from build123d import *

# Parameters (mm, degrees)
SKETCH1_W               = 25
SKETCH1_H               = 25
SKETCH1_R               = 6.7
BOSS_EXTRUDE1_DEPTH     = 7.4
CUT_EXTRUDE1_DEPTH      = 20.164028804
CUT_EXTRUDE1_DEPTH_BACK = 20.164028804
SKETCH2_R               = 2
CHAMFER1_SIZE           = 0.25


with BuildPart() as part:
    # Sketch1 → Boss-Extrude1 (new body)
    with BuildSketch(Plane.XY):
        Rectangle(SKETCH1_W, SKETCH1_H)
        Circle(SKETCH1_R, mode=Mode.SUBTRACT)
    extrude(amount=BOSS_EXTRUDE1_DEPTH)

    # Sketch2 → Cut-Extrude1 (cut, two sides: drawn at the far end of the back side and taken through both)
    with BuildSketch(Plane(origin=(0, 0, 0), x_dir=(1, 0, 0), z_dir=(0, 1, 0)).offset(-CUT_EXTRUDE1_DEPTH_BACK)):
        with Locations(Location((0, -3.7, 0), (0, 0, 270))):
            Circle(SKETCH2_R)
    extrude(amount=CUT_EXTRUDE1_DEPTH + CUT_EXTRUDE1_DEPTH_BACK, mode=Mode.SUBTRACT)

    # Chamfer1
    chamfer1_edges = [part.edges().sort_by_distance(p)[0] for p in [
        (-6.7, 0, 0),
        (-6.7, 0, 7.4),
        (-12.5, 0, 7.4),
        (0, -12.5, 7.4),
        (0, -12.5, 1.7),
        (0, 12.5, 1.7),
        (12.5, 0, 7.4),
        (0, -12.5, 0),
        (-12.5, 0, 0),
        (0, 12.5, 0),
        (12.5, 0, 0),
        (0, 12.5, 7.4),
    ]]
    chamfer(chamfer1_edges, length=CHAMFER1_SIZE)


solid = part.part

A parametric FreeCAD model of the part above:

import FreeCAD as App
import Part
import Sketcher
Q = App.Units.Quantity


def edges_at(feature, points):
    """Names of the edges that pass closest to the given points."""
    edges = feature.Shape.Edges
    near = lambda p: min(range(len(edges)), key=lambda i: edges[i].distToShape(Part.Vertex(*p))[0])
    return sorted({f"Edge{near(p) + 1}" for p in points})

doc = App.newDocument("Part")
body = doc.addObject("PartDesign::Body", "Body")

# Sketch on XY plane
sketch1 = body.newObject("Sketcher::SketchObject", "Sketch")
sketch1.AttachmentSupport = (doc.getObject("XY_Plane"), [""])
sketch1.MapMode = "FlatFace"
sketch1.addGeometry([
    Part.LineSegment(App.Vector(-12, 12, 0), App.Vector(-12, -12, 0)),  # 0
    Part.LineSegment(App.Vector(-12, -12, 0), App.Vector(12, -12, 0)),  # 1
    Part.LineSegment(App.Vector(12, -12, 0), App.Vector(12, 12, 0)),  # 2
    Part.LineSegment(App.Vector(12, 12, 0), App.Vector(-12, 12, 0)),  # 3
    Part.Circle(App.Vector(0, 0, 0), App.Vector(0, 0, 1), 7),  # 4
], False)
sketch1.addConstraint([
    Sketcher.Constraint("Coincident", 0, 2, 1, 1),
    Sketcher.Constraint("Coincident", 1, 2, 2, 1),
    Sketcher.Constraint("Coincident", 2, 2, 3, 1),
    Sketcher.Constraint("Coincident", 3, 2, 0, 1),
    Sketcher.Constraint("Vertical", 0),
    Sketcher.Constraint("Horizontal", 1),
    Sketcher.Constraint("Vertical", 2),
    Sketcher.Constraint("Horizontal", 3),
    Sketcher.Constraint("Coincident", 4, 3, -1, 1),
    Sketcher.Constraint("Symmetric", 0, 2, 2, 2, -1, 1),
    Sketcher.Constraint("Equal", 3, 0),
    Sketcher.Constraint("Diameter", 4, Q("13.4 mm")),
    Sketcher.Constraint("DistanceX", 1, 1, 1, 2, Q("25 mm")),
])
pad1 = body.newObject("PartDesign::Pad", "Pad")
pad1.Profile = sketch1
pad1.Length = 7.4

# Sketch on XZ plane
sketch2 = body.newObject("Sketcher::SketchObject", "Sketch001")
sketch2.AttachmentSupport = (doc.getObject("XZ_Plane"), [""])
sketch2.MapMode = "FlatFace"
sketch2.addGeometry(Part.Circle(App.Vector(0, 3.7, 0), App.Vector(0, 0, 1), 2), False)
sketch2.addConstraint([
    Sketcher.Constraint("PointOnObject", 0, 3, -2),
    Sketcher.Constraint("Diameter", 0, Q("4 mm")),
    Sketcher.Constraint("DistanceY", -1, 1, 0, 3, Q("3.7 mm")),
])
pocket1 = body.newObject("PartDesign::Pocket", "Pocket")
pocket1.Profile = sketch2
pocket1.Type = "ThroughAll"
pocket1.Midplane = True
doc.recompute()

chamfer = body.newObject("PartDesign::Chamfer", "Chamfer")
chamfer.Base = (pocket1, edges_at(pocket1, [
    (-6.7, 0, 0),
    (-6.7, 0, 7.4),
    (-12.5, 0, 7.4),
    (0, -12.5, 7.4),
    (0, -12.5, 1.7),
    (0, 12.5, 1.7),
    (12.5, 0, 7.4),
    (0, -12.5, 0),
    (-12.5, 0, 0),
    (0, 12.5, 0),
    (12.5, 0, 0),
    (0, 12.5, 7.4),
]))
chamfer.Size = 0.25

doc.recompute()
